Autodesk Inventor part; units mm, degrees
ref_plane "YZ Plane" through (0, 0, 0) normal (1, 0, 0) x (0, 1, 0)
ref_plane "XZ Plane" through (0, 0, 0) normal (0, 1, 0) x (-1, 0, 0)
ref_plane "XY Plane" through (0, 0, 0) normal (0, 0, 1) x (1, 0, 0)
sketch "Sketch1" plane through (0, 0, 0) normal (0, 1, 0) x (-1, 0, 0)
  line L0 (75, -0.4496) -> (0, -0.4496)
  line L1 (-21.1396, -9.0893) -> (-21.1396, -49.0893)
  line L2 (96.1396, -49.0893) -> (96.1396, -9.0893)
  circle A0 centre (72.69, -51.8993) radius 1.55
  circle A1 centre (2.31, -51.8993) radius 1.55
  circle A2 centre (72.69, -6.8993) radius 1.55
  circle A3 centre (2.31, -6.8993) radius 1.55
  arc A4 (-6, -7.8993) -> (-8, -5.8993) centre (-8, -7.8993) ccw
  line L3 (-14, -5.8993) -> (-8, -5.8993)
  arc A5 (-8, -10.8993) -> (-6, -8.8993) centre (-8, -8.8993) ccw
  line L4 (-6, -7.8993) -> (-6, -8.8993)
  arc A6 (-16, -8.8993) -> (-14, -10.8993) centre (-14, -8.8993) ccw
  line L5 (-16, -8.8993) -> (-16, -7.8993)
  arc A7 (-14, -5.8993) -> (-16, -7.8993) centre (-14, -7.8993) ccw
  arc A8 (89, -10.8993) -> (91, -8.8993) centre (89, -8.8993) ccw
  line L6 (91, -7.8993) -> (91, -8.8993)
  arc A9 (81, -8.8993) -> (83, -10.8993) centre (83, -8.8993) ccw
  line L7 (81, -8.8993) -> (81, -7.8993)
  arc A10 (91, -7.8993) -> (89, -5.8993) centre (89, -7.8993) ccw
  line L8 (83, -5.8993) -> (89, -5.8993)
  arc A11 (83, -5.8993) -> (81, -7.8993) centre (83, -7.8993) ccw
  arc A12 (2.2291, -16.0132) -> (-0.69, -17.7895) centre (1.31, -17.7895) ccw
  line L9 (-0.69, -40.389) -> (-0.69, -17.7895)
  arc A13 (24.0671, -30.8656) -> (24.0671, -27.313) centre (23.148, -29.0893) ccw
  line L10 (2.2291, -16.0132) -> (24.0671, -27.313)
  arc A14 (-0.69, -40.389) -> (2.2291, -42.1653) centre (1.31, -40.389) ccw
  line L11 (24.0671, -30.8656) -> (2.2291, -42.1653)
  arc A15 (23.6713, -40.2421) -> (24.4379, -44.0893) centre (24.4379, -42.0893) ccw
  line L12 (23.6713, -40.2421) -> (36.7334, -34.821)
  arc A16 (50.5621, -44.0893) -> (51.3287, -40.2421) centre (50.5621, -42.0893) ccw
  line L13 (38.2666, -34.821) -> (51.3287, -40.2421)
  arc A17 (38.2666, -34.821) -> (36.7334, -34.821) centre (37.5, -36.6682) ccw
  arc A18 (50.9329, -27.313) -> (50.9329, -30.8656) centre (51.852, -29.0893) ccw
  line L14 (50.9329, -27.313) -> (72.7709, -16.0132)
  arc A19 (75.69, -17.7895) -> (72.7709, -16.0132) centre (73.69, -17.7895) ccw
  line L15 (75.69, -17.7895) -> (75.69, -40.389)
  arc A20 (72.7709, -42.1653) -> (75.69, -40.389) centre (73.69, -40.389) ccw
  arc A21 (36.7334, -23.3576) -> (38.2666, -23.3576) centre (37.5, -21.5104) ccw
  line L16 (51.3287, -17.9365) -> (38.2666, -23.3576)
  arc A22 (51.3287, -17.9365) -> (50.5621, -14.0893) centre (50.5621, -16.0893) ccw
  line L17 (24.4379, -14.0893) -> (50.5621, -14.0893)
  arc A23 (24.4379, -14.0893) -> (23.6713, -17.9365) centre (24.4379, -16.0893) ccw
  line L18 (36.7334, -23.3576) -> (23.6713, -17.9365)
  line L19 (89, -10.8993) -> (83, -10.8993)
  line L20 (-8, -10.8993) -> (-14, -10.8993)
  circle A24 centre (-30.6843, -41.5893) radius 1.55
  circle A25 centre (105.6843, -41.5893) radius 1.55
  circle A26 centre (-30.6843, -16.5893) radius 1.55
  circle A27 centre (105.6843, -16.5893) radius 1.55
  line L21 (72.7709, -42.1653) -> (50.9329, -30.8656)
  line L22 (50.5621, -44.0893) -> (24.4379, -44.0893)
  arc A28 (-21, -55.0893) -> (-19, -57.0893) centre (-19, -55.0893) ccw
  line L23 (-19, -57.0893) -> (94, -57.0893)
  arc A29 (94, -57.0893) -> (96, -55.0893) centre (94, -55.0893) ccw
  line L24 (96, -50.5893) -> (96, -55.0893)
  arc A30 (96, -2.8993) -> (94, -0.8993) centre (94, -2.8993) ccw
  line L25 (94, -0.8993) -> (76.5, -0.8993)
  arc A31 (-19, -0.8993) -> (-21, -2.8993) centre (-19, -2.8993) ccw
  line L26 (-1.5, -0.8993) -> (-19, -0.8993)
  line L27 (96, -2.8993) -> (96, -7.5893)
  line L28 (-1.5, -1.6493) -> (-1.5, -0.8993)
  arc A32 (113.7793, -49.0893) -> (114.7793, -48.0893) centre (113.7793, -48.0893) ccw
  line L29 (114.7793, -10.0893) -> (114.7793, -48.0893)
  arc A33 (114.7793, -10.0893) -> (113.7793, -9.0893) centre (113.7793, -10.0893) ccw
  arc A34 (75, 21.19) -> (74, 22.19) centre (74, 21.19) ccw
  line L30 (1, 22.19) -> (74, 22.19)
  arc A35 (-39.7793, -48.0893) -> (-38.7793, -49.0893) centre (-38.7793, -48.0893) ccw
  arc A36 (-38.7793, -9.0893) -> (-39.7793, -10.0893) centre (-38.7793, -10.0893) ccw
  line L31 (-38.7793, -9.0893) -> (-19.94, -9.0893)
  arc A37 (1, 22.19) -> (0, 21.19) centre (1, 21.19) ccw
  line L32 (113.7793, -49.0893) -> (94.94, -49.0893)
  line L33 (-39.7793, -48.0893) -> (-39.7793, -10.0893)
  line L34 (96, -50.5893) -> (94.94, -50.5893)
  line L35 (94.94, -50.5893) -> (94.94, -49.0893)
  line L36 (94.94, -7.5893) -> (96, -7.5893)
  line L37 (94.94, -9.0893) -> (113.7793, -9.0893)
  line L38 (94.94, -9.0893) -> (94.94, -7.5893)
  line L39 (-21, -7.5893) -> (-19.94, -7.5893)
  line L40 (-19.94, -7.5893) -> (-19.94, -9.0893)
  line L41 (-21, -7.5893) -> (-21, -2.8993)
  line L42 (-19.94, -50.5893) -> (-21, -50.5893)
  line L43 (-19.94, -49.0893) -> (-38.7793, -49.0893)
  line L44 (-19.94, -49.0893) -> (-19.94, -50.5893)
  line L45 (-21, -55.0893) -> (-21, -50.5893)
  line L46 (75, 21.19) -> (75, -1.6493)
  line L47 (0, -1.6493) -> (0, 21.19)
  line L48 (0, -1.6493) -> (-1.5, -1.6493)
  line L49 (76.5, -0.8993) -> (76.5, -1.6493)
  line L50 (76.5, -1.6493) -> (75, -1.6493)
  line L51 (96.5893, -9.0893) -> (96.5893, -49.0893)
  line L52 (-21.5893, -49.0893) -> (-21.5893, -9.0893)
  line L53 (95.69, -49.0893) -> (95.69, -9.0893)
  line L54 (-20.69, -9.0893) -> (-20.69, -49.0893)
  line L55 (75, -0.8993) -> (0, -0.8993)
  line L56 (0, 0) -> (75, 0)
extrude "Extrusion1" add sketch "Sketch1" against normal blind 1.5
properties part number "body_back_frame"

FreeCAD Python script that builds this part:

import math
import FreeCAD as App
import Part
import Sketcher
Q = App.Units.Quantity

doc = App.newDocument("Part")
body = doc.addObject("PartDesign::Body", "Body")

sketch1 = doc.addObject("Sketcher::SketchObject", "Sketch")
body.addObject(sketch1)
sketch1.AttachmentSupport = (doc.XZ_Plane, [""])
sketch1.MapMode = "FlatFace"
sketch1.addGeometry(Part.ArcOfCircle(Part.Circle(App.Vector(-74, 21.19, 0), App.Vector(0, 0, 1), 1), math.radians(90), math.radians(180)), False)
sketch1.addGeometry(Part.LineSegment(App.Vector(-74, 22.19, 0), App.Vector(-1, 22.19, 0)), False)
sketch1.addGeometry(Part.ArcOfCircle(Part.Circle(App.Vector(-1, 21.19, 0), App.Vector(0, 0, 1), 1), math.radians(0), math.radians(90)), False)
sketch1.addGeometry(Part.LineSegment(App.Vector(0, 21.19, 0), App.Vector(0, -1.6493, 0)), False)
sketch1.addGeometry(Part.LineSegment(App.Vector(0, -1.6493, 0), App.Vector(1.5, -1.6493, 0)), False)
sketch1.addGeometry(Part.LineSegment(App.Vector(1.5, -1.6493, 0), App.Vector(1.5, -0.8993, 0)), False)
sketch1.addGeometry(Part.LineSegment(App.Vector(1.5, -0.8993, 0), App.Vector(19, -0.8993, 0)), False)
sketch1.addGeometry(Part.ArcOfCircle(Part.Circle(App.Vector(19, -2.8993, 0), App.Vector(0, 0, 1), 2), math.radians(0), math.radians(90)), False)
sketch1.addGeometry(Part.LineSegment(App.Vector(21, -2.8993, 0), App.Vector(21, -7.5893, 0)), False)
sketch1.addGeometry(Part.LineSegment(App.Vector(21, -7.5893, 0), App.Vector(19.94, -7.5893, 0)), False)
sketch1.addGeometry(Part.LineSegment(App.Vector(19.94, -7.5893, 0), App.Vector(19.94, -9.0893, 0)), False)
sketch1.addGeometry(Part.LineSegment(App.Vector(19.94, -9.0893, 0), App.Vector(38.7793, -9.0893, 0)), False)
sketch1.addGeometry(Part.ArcOfCircle(Part.Circle(App.Vector(38.7793, -10.0893, 0), App.Vector(0, 0, 1), 1), math.radians(0), math.radians(90)), False)
sketch1.addGeometry(Part.LineSegment(App.Vector(39.7793, -10.0893, 0), App.Vector(39.7793, -48.0893, 0)), False)
sketch1.addGeometry(Part.ArcOfCircle(Part.Circle(App.Vector(38.7793, -48.0893, 0), App.Vector(0, 0, 1), 1), math.radians(-90), math.radians(0)), False)
sketch1.addGeometry(Part.LineSegment(App.Vector(38.7793, -49.0893, 0), App.Vector(19.94, -49.0893, 0)), False)
sketch1.addGeometry(Part.LineSegment(App.Vector(19.94, -49.0893, 0), App.Vector(19.94, -50.5893, 0)), False)
sketch1.addGeometry(Part.LineSegment(App.Vector(19.94, -50.5893, 0), App.Vector(21, -50.5893, 0)), False)
sketch1.addGeometry(Part.LineSegment(App.Vector(21, -50.5893, 0), App.Vector(21, -55.0893, 0)), False)
sketch1.addGeometry(Part.ArcOfCircle(Part.Circle(App.Vector(19, -55.0893, 0), App.Vector(0, 0, 1), 2), math.radians(-90), math.radians(0)), False)
sketch1.addGeometry(Part.LineSegment(App.Vector(19, -57.0893, 0), App.Vector(-94, -57.0893, 0)), False)
sketch1.addGeometry(Part.ArcOfCircle(Part.Circle(App.Vector(-94, -55.0893, 0), App.Vector(0, 0, 1), 2), math.radians(180), math.radians(270)), False)
sketch1.addGeometry(Part.LineSegment(App.Vector(-96, -55.0893, 0), App.Vector(-96, -50.5893, 0)), False)
sketch1.addGeometry(Part.LineSegment(App.Vector(-96, -50.5893, 0), App.Vector(-94.94, -50.5893, 0)), False)
sketch1.addGeometry(Part.LineSegment(App.Vector(-94.94, -50.5893, 0), App.Vector(-94.94, -49.0893, 0)), False)
sketch1.addGeometry(Part.LineSegment(App.Vector(-94.94, -49.0893, 0), App.Vector(-113.7793, -49.0893, 0)), False)
sketch1.addGeometry(Part.ArcOfCircle(Part.Circle(App.Vector(-113.7793, -48.0893, 0), App.Vector(0, 0, 1), 1), math.radians(180), math.radians(270)), False)
sketch1.addGeometry(Part.LineSegment(App.Vector(-114.7793, -48.0893, 0), App.Vector(-114.7793, -10.0893, 0)), False)
sketch1.addGeometry(Part.ArcOfCircle(Part.Circle(App.Vector(-113.7793, -10.0893, 0), App.Vector(0, 0, 1), 1), math.radians(90), math.radians(180)), False)
sketch1.addGeometry(Part.LineSegment(App.Vector(-113.7793, -9.0893, 0), App.Vector(-94.94, -9.0893, 0)), False)
sketch1.addGeometry(Part.LineSegment(App.Vector(-94.94, -9.0893, 0), App.Vector(-94.94, -7.5893, 0)), False)
sketch1.addGeometry(Part.LineSegment(App.Vector(-94.94, -7.5893, 0), App.Vector(-96, -7.5893, 0)), False)
sketch1.addGeometry(Part.LineSegment(App.Vector(-96, -7.5893, 0), App.Vector(-96, -2.8993, 0)), False)
sketch1.addGeometry(Part.ArcOfCircle(Part.Circle(App.Vector(-94, -2.8993, 0), App.Vector(0, 0, 1), 2), math.radians(90), math.radians(180)), False)
sketch1.addGeometry(Part.LineSegment(App.Vector(-94, -0.8993, 0), App.Vector(-76.5, -0.8993, 0)), False)
sketch1.addGeometry(Part.LineSegment(App.Vector(-76.5, -0.8993, 0), App.Vector(-76.5, -1.6493, 0)), False)
sketch1.addGeometry(Part.LineSegment(App.Vector(-76.5, -1.6493, 0), App.Vector(-75, -1.6493, 0)), False)
sketch1.addGeometry(Part.LineSegment(App.Vector(-75, -1.6493, 0), App.Vector(-75, 21.19, 0)), False)
sketch1.addGeometry(Part.LineSegment(App.Vector(-89, -10.8993, 0), App.Vector(-83, -10.8993, 0)), False)
sketch1.addGeometry(Part.ArcOfCircle(Part.Circle(App.Vector(-83, -8.8993, 0), App.Vector(0, 0, 1), 2), math.radians(-90), math.radians(0)), False)
sketch1.addGeometry(Part.LineSegment(App.Vector(-81, -8.8993, 0), App.Vector(-81, -7.8993, 0)), False)
sketch1.addGeometry(Part.ArcOfCircle(Part.Circle(App.Vector(-83, -7.8993, 0), App.Vector(0, 0, 1), 2), math.radians(0), math.radians(90)), False)
sketch1.addGeometry(Part.LineSegment(App.Vector(-83, -5.8993, 0), App.Vector(-89, -5.8993, 0)), False)
sketch1.addGeometry(Part.ArcOfCircle(Part.Circle(App.Vector(-89, -7.8993, 0), App.Vector(0, 0, 1), 2), math.radians(90), math.radians(180)), False)
sketch1.addGeometry(Part.LineSegment(App.Vector(-91, -7.8993, 0), App.Vector(-91, -8.8993, 0)), False)
sketch1.addGeometry(Part.ArcOfCircle(Part.Circle(App.Vector(-89, -8.8993, 0), App.Vector(0, 0, 1), 2), math.radians(180), math.radians(270)), False)
sketch1.addGeometry(Part.Circle(App.Vector(-2.31, -51.8993, 0), App.Vector(0, 0, 1), 1.55), False)
sketch1.addGeometry(Part.ArcOfCircle(Part.Circle(App.Vector(-1.31, -17.7895, 0), App.Vector(0, 0, 1), 1.999997), math.radians(0), math.radians(117.358124)), False)
sketch1.addGeometry(Part.LineSegment(App.Vector(-2.2291, -16.0132, 0), App.Vector(-24.0671, -27.313, 0)), False)
sketch1.addGeometry(Part.ArcOfCircle(Part.Circle(App.Vector(-23.148, -29.0893, 0), App.Vector(0, 0, 1), 1.999997), math.radians(117.358124), math.radians(242.641876)), False)
sketch1.addGeometry(Part.LineSegment(App.Vector(-24.0671, -30.8656, 0), App.Vector(-2.2291, -42.1653, 0)), False)
sketch1.addGeometry(Part.ArcOfCircle(Part.Circle(App.Vector(-1.31, -40.389, 0), App.Vector(0, 0, 1), 2), math.radians(-117.358124), math.radians(0)), False)
sketch1.addGeometry(Part.LineSegment(App.Vector(0.69, -40.389, 0), App.Vector(0.69, -17.7895, 0)), False)
sketch1.addGeometry(Part.ArcOfCircle(Part.Circle(App.Vector(-37.5, -21.5104, 0), App.Vector(0, 0, 1), 1.999956), math.radians(-112.538768), math.radians(-67.461232)), False)
sketch1.addGeometry(Part.LineSegment(App.Vector(-36.7334, -23.3576, 0), App.Vector(-23.6713, -17.9365, 0)), False)
sketch1.addGeometry(Part.ArcOfCircle(Part.Circle(App.Vector(-24.4379, -16.0893, 0), App.Vector(0, 0, 1), 2), math.radians(-67.461232), math.radians(90)), False)
sketch1.addGeometry(Part.LineSegment(App.Vector(-24.4379, -14.0893, 0), App.Vector(-50.5621, -14.0893, 0)), False)
sketch1.addGeometry(Part.ArcOfCircle(Part.Circle(App.Vector(-50.5621, -16.0893, 0), App.Vector(0, 0, 1), 1.999956), math.radians(90), math.radians(247.461232)), False)
sketch1.addGeometry(Part.LineSegment(App.Vector(-51.3287, -17.9365, 0), App.Vector(-38.2666, -23.3576, 0)), False)
sketch1.addGeometry(Part.Circle(App.Vector(-72.69, -51.8993, 0), App.Vector(0, 0, 1), 1.55), False)
sketch1.addGeometry(Part.ArcOfCircle(Part.Circle(App.Vector(-24.4379, -42.0893, 0), App.Vector(0, 0, 1), 1.999956), math.radians(-90), math.radians(67.461232)), False)
sketch1.addGeometry(Part.LineSegment(App.Vector(-23.6713, -40.2421, 0), App.Vector(-36.7334, -34.821, 0)), False)
sketch1.addGeometry(Part.ArcOfCircle(Part.Circle(App.Vector(-37.5, -36.6682, 0), App.Vector(0, 0, 1), 1.999956), math.radians(67.461232), math.radians(112.538768)), False)
sketch1.addGeometry(Part.LineSegment(App.Vector(-38.2666, -34.821, 0), App.Vector(-51.3287, -40.2421, 0)), False)
sketch1.addGeometry(Part.ArcOfCircle(Part.Circle(App.Vector(-50.5621, -42.0893, 0), App.Vector(0, 0, 1), 2), math.radians(112.538768), math.radians(270)), False)
sketch1.addGeometry(Part.LineSegment(App.Vector(-50.5621, -44.0893, 0), App.Vector(-24.4379, -44.0893, 0)), False)
sketch1.addGeometry(Part.ArcOfCircle(Part.Circle(App.Vector(-51.852, -29.0893, 0), App.Vector(0, 0, 1), 1.999997), math.radians(-62.641876), math.radians(62.641876)), False)
sketch1.addGeometry(Part.LineSegment(App.Vector(-50.9329, -27.313, 0), App.Vector(-72.7709, -16.0132, 0)), False)
sketch1.addGeometry(Part.ArcOfCircle(Part.Circle(App.Vector(-73.69, -17.7895, 0), App.Vector(0, 0, 1), 2), math.radians(62.641876), math.radians(180)), False)
sketch1.addGeometry(Part.LineSegment(App.Vector(-75.69, -17.7895, 0), App.Vector(-75.69, -40.389, 0)), False)
sketch1.addGeometry(Part.ArcOfCircle(Part.Circle(App.Vector(-73.69, -40.389, 0), App.Vector(0, 0, 1), 1.999997), math.radians(180), math.radians(297.358124)), False)
sketch1.addGeometry(Part.LineSegment(App.Vector(-72.7709, -42.1653, 0), App.Vector(-50.9329, -30.8656, 0)), False)
sketch1.addGeometry(Part.ArcOfCircle(Part.Circle(App.Vector(8, -7.8993, 0), App.Vector(0, 0, 1), 2), math.radians(90), math.radians(180)), False)
sketch1.addGeometry(Part.LineSegment(App.Vector(6, -7.8993, 0), App.Vector(6, -8.8993, 0)), False)
sketch1.addGeometry(Part.ArcOfCircle(Part.Circle(App.Vector(8, -8.8993, 0), App.Vector(0, 0, 1), 2), math.radians(180), math.radians(270)), False)
sketch1.addGeometry(Part.LineSegment(App.Vector(8, -10.8993, 0), App.Vector(14, -10.8993, 0)), False)
sketch1.addGeometry(Part.ArcOfCircle(Part.Circle(App.Vector(14, -8.8993, 0), App.Vector(0, 0, 1), 2), math.radians(-90), math.radians(0)), False)
sketch1.addGeometry(Part.LineSegment(App.Vector(16, -8.8993, 0), App.Vector(16, -7.8993, 0)), False)
sketch1.addGeometry(Part.ArcOfCircle(Part.Circle(App.Vector(14, -7.8993, 0), App.Vector(0, 0, 1), 2), math.radians(0), math.radians(90)), False)
sketch1.addGeometry(Part.LineSegment(App.Vector(14, -5.8993, 0), App.Vector(8, -5.8993, 0)), False)
sketch1.addGeometry(Part.Circle(App.Vector(-2.31, -6.8993, 0), App.Vector(0, 0, 1), 1.55), False)
sketch1.addGeometry(Part.Circle(App.Vector(-72.69, -6.8993, 0), App.Vector(0, 0, 1), 1.55), False)
sketch1.addGeometry(Part.Circle(App.Vector(-105.6843, -16.5893, 0), App.Vector(0, 0, 1), 1.55), False)
sketch1.addGeometry(Part.Circle(App.Vector(-105.6843, -41.5893, 0), App.Vector(0, 0, 1), 1.55), False)
sketch1.addGeometry(Part.Circle(App.Vector(30.6843, -16.5893, 0), App.Vector(0, 0, 1), 1.55), False)
sketch1.addGeometry(Part.Circle(App.Vector(30.6843, -41.5893, 0), App.Vector(0, 0, 1), 1.55), False)
sketch1.addConstraint(Sketcher.Constraint("Tangent", 0, 1, 1, 1))
sketch1.addConstraint(Sketcher.Constraint("Tangent", 1, 2, 2, 2))
sketch1.addConstraint(Sketcher.Constraint("Tangent", 2, 1, 3, 1))
sketch1.addConstraint(Sketcher.Constraint("Coincident", 3, 2, 4, 1))
sketch1.addConstraint(Sketcher.Constraint("Coincident", 4, 2, 5, 1))
sketch1.addConstraint(Sketcher.Constraint("Coincident", 5, 2, 6, 1))
sketch1.addConstraint(Sketcher.Constraint("Tangent", 6, 2, 7, 2))
sketch1.addConstraint(Sketcher.Constraint("Tangent", 7, 1, 8, 1))
sketch1.addConstraint(Sketcher.Constraint("Coincident", 8, 2, 9, 1))
sketch1.addConstraint(Sketcher.Constraint("Coincident", 9, 2, 10, 1))
sketch1.addConstraint(Sketcher.Constraint("Coincident", 10, 2, 11, 1))
sketch1.addConstraint(Sketcher.Constraint("Tangent", 11, 2, 12, 2))
sketch1.addConstraint(Sketcher.Constraint("Tangent", 12, 1, 13, 1))
sketch1.addConstraint(Sketcher.Constraint("Tangent", 13, 2, 14, 2))
sketch1.addConstraint(Sketcher.Constraint("Tangent", 14, 1, 15, 1))
sketch1.addConstraint(Sketcher.Constraint("Coincident", 15, 2, 16, 1))
sketch1.addConstraint(Sketcher.Constraint("Coincident", 16, 2, 17, 1))
sketch1.addConstraint(Sketcher.Constraint("Coincident", 17, 2, 18, 1))
sketch1.addConstraint(Sketcher.Constraint("Tangent", 18, 2, 19, 2))
sketch1.addConstraint(Sketcher.Constraint("Tangent", 19, 1, 20, 1))
sketch1.addConstraint(Sketcher.Constraint("Tangent", 20, 2, 21, 2))
sketch1.addConstraint(Sketcher.Constraint("Tangent", 21, 1, 22, 1))
sketch1.addConstraint(Sketcher.Constraint("Coincident", 22, 2, 23, 1))
sketch1.addConstraint(Sketcher.Constraint("Coincident", 23, 2, 24, 1))
sketch1.addConstraint(Sketcher.Constraint("Coincident", 24, 2, 25, 1))
sketch1.addConstraint(Sketcher.Constraint("Tangent", 25, 2, 26, 2))
sketch1.addConstraint(Sketcher.Constraint("Tangent", 26, 1, 27, 1))
sketch1.addConstraint(Sketcher.Constraint("Tangent", 27, 2, 28, 2))
sketch1.addConstraint(Sketcher.Constraint("Tangent", 28, 1, 29, 1))
sketch1.addConstraint(Sketcher.Constraint("Coincident", 29, 2, 30, 1))
sketch1.addConstraint(Sketcher.Constraint("Coincident", 30, 2, 31, 1))
sketch1.addConstraint(Sketcher.Constraint("Coincident", 31, 2, 32, 1))
sketch1.addConstraint(Sketcher.Constraint("Tangent", 32, 2, 33, 2))
sketch1.addConstraint(Sketcher.Constraint("Tangent", 33, 1, 34, 1))
sketch1.addConstraint(Sketcher.Constraint("Coincident", 34, 2, 35, 1))
sketch1.addConstraint(Sketcher.Constraint("Coincident", 35, 2, 36, 1))
sketch1.addConstraint(Sketcher.Constraint("Coincident", 36, 2, 37, 1))
sketch1.addConstraint(Sketcher.Constraint("Tangent", 37, 2, 0, 2))
sketch1.addConstraint(Sketcher.Constraint("Tangent", 38, 2, 39, 1))
sketch1.addConstraint(Sketcher.Constraint("Tangent", 39, 2, 40, 1))
sketch1.addConstraint(Sketcher.Constraint("Tangent", 40, 2, 41, 1))
sketch1.addConstraint(Sketcher.Constraint("Tangent", 41, 2, 42, 1))
sketch1.addConstraint(Sketcher.Constraint("Tangent", 42, 2, 43, 1))
sketch1.addConstraint(Sketcher.Constraint("Tangent", 43, 2, 44, 1))
sketch1.addConstraint(Sketcher.Constraint("Tangent", 44, 2, 45, 1))
sketch1.addConstraint(Sketcher.Constraint("Tangent", 45, 2, 38, 1))
sketch1.addConstraint(Sketcher.Constraint("Tangent", 47, 2, 48, 1))
sketch1.addConstraint(Sketcher.Constraint("Tangent", 48, 2, 49, 1))
sketch1.addConstraint(Sketcher.Constraint("Tangent", 49, 2, 50, 1))
sketch1.addConstraint(Sketcher.Constraint("Tangent", 50, 2, 51, 1))
sketch1.addConstraint(Sketcher.Constraint("Tangent", 51, 2, 52, 1))
sketch1.addConstraint(Sketcher.Constraint("Tangent", 52, 2, 47, 1))
sketch1.addConstraint(Sketcher.Constraint("Tangent", 53, 2, 54, 1))
sketch1.addConstraint(Sketcher.Constraint("Tangent", 54, 2, 55, 1))
sketch1.addConstraint(Sketcher.Constraint("Tangent", 55, 2, 56, 1))
sketch1.addConstraint(Sketcher.Constraint("Tangent", 56, 2, 57, 1))
sketch1.addConstraint(Sketcher.Constraint("Tangent", 57, 2, 58, 1))
sketch1.addConstraint(Sketcher.Constraint("Tangent", 58, 2, 53, 1))
sketch1.addConstraint(Sketcher.Constraint("Tangent", 60, 2, 61, 1))
sketch1.addConstraint(Sketcher.Constraint("Tangent", 61, 2, 62, 1))
sketch1.addConstraint(Sketcher.Constraint("Tangent", 62, 2, 63, 1))
sketch1.addConstraint(Sketcher.Constraint("Tangent", 63, 2, 64, 1))
sketch1.addConstraint(Sketcher.Constraint("Tangent", 64, 2, 65, 1))
sketch1.addConstraint(Sketcher.Constraint("Tangent", 65, 2, 60, 1))
sketch1.addConstraint(Sketcher.Constraint("Tangent", 66, 2, 67, 1))
sketch1.addConstraint(Sketcher.Constraint("Tangent", 67, 2, 68, 1))
sketch1.addConstraint(Sketcher.Constraint("Tangent", 68, 2, 69, 1))
sketch1.addConstraint(Sketcher.Constraint("Tangent", 69, 2, 70, 1))
sketch1.addConstraint(Sketcher.Constraint("Tangent", 70, 2, 71, 1))
sketch1.addConstraint(Sketcher.Constraint("Tangent", 71, 2, 66, 1))
sketch1.addConstraint(Sketcher.Constraint("Tangent", 72, 2, 73, 1))
sketch1.addConstraint(Sketcher.Constraint("Tangent", 73, 2, 74, 1))
sketch1.addConstraint(Sketcher.Constraint("Tangent", 74, 2, 75, 1))
sketch1.addConstraint(Sketcher.Constraint("Tangent", 75, 2, 76, 1))
sketch1.addConstraint(Sketcher.Constraint("Tangent", 76, 2, 77, 1))
sketch1.addConstraint(Sketcher.Constraint("Tangent", 77, 2, 78, 1))
sketch1.addConstraint(Sketcher.Constraint("Tangent", 78, 2, 79, 1))
sketch1.addConstraint(Sketcher.Constraint("Tangent", 79, 2, 72, 1))
sketch1.addConstraint(Sketcher.Constraint("Horizontal", 1))
sketch1.addConstraint(Sketcher.Constraint("Vertical", 3))
sketch1.addConstraint(Sketcher.Constraint("Horizontal", 4))
sketch1.addConstraint(Sketcher.Constraint("Vertical", 5))
sketch1.addConstraint(Sketcher.Constraint("Horizontal", 6))
sketch1.addConstraint(Sketcher.Constraint("Vertical", 8))
sketch1.addConstraint(Sketcher.Constraint("Horizontal", 9))
sketch1.addConstraint(Sketcher.Constraint("Vertical", 10))
sketch1.addConstraint(Sketcher.Constraint("Horizontal", 11))
sketch1.addConstraint(Sketcher.Constraint("Vertical", 13))
sketch1.addConstraint(Sketcher.Constraint("Horizontal", 15))
sketch1.addConstraint(Sketcher.Constraint("Vertical", 16))
sketch1.addConstraint(Sketcher.Constraint("Horizontal", 17))
sketch1.addConstraint(Sketcher.Constraint("Vertical", 18))
sketch1.addConstraint(Sketcher.Constraint("Horizontal", 20))
sketch1.addConstraint(Sketcher.Constraint("Vertical", 22))
sketch1.addConstraint(Sketcher.Constraint("Horizontal", 23))
sketch1.addConstraint(Sketcher.Constraint("Vertical", 24))
sketch1.addConstraint(Sketcher.Constraint("Horizontal", 25))
sketch1.addConstraint(Sketcher.Constraint("Vertical", 27))
sketch1.addConstraint(Sketcher.Constraint("Horizontal", 29))
sketch1.addConstraint(Sketcher.Constraint("Vertical", 30))
sketch1.addConstraint(Sketcher.Constraint("Horizontal", 31))
sketch1.addConstraint(Sketcher.Constraint("Vertical", 32))
sketch1.addConstraint(Sketcher.Constraint("Horizontal", 34))
sketch1.addConstraint(Sketcher.Constraint("Vertical", 35))
sketch1.addConstraint(Sketcher.Constraint("Horizontal", 36))
sketch1.addConstraint(Sketcher.Constraint("Vertical", 37))
sketch1.addConstraint(Sketcher.Constraint("Horizontal", 38))
sketch1.addConstraint(Sketcher.Constraint("Vertical", 40))
sketch1.addConstraint(Sketcher.Constraint("Horizontal", 42))
sketch1.addConstraint(Sketcher.Constraint("Vertical", 44))
sketch1.addConstraint(Sketcher.Constraint("Vertical", 52))
sketch1.addConstraint(Sketcher.Constraint("Horizontal", 56))
sketch1.addConstraint(Sketcher.Constraint("Horizontal", 65))
sketch1.addConstraint(Sketcher.Constraint("Vertical", 69))
sketch1.addConstraint(Sketcher.Constraint("Vertical", 73))
sketch1.addConstraint(Sketcher.Constraint("Horizontal", 75))
sketch1.addConstraint(Sketcher.Constraint("Vertical", 77))
sketch1.addConstraint(Sketcher.Constraint("Horizontal", 79))
sketch1.addConstraint(Sketcher.Constraint("Equal", 0, 2))
sketch1.addConstraint(Sketcher.Constraint("Equal", 2, 12))
sketch1.addConstraint(Sketcher.Constraint("Equal", 12, 14))
sketch1.addConstraint(Sketcher.Constraint("Equal", 7, 19))
sketch1.addConstraint(Sketcher.Constraint("Equal", 19, 21))
sketch1.addConstraint(Sketcher.Constraint("Equal", 14, 26))
sketch1.addConstraint(Sketcher.Constraint("Equal", 26, 28))
sketch1.addConstraint(Sketcher.Constraint("Equal", 21, 33))
sketch1.addConstraint(Sketcher.Constraint("Equal", 33, 39))
sketch1.addConstraint(Sketcher.Constraint("Equal", 39, 41))
sketch1.addConstraint(Sketcher.Constraint("Equal", 41, 43))
sketch1.addConstraint(Sketcher.Constraint("Equal", 43, 45))
sketch1.addConstraint(Sketcher.Constraint("Equal", 45, 47))
sketch1.addConstraint(Sketcher.Constraint("Equal", 47, 49))
sketch1.addConstraint(Sketcher.Constraint("Equal", 49, 51))
sketch1.addConstraint(Sketcher.Constraint("Equal", 51, 53))
sketch1.addConstraint(Sketcher.Constraint("Equal", 53, 55))
sketch1.addConstraint(Sketcher.Constraint("Equal", 55, 57))
sketch1.addConstraint(Sketcher.Constraint("Equal", 46, 59))
sketch1.addConstraint(Sketcher.Constraint("Equal", 57, 60))
sketch1.addConstraint(Sketcher.Constraint("Equal", 60, 62))
sketch1.addConstraint(Sketcher.Constraint("Equal", 62, 64))
sketch1.addConstraint(Sketcher.Constraint("Equal", 64, 66))
sketch1.addConstraint(Sketcher.Constraint("Equal", 66, 68))
sketch1.addConstraint(Sketcher.Constraint("Equal", 68, 70))
sketch1.addConstraint(Sketcher.Constraint("Equal", 70, 72))
sketch1.addConstraint(Sketcher.Constraint("Equal", 72, 74))
sketch1.addConstraint(Sketcher.Constraint("Equal", 74, 76))
sketch1.addConstraint(Sketcher.Constraint("Equal", 76, 78))
sketch1.addConstraint(Sketcher.Constraint("Equal", 59, 80))
sketch1.addConstraint(Sketcher.Constraint("Equal", 80, 81))
sketch1.addConstraint(Sketcher.Constraint("Equal", 81, 82))
sketch1.addConstraint(Sketcher.Constraint("Equal", 82, 83))
sketch1.addConstraint(Sketcher.Constraint("Equal", 83, 84))
sketch1.addConstraint(Sketcher.Constraint("Equal", 84, 85))
sketch1.addConstraint(Sketcher.Constraint("PointOnObject", 2, 1, -2))
sketch1.addConstraint(Sketcher.Constraint("Parallel", 58, 61))
sketch1.addConstraint(Sketcher.Constraint("Parallel", 54, 63))
sketch1.addConstraint(Sketcher.Constraint("Parallel", 50, 67))
sketch1.addConstraint(Sketcher.Constraint("Parallel", 48, 71))
sketch1.addConstraint(Sketcher.Constraint("Horizontal", 14, 3, 26, 3))
sketch1.addConstraint(Sketcher.Constraint("Horizontal", 12, 3, 28, 3))
sketch1.addConstraint(Sketcher.Constraint("Horizontal", 7, 3, 33, 3))
sketch1.addConstraint(Sketcher.Constraint("Horizontal", 46, 3, 59, 3))
sketch1.addConstraint(Sketcher.Constraint("Horizontal", 49, 3, 66, 3))
sketch1.addConstraint(Sketcher.Constraint("Horizontal", 47, 3, 68, 3))
sketch1.addConstraint(Sketcher.Constraint("Horizontal", 51, 3, 70, 3))
sketch1.addConstraint(Sketcher.Constraint("Horizontal", 43, 3, 72, 3))
sketch1.addConstraint(Sketcher.Constraint("Horizontal", 45, 3, 74, 3))
sketch1.addConstraint(Sketcher.Constraint("Horizontal", 80, 3, 81, 3))
sketch1.addConstraint(Sketcher.Constraint("Horizontal", 82, 3, 84, 3))
sketch1.addConstraint(Sketcher.Constraint("Horizontal", 83, 3, 85, 3))
sketch1.addConstraint(Sketcher.Constraint("Horizontal", 17, 2, 22, 2))
sketch1.addConstraint(Sketcher.Constraint("Horizontal", 9, 2, 30, 2))
sketch1.addConstraint(Sketcher.Constraint("Horizontal", 4, 2, 35, 2))
sketch1.addConstraint(Sketcher.Constraint("Horizontal", 54, 2, 57, 2))
sketch1.addConstraint(Sketcher.Constraint("Vertical", 7, 3, 19, 3))
sketch1.addConstraint(Sketcher.Constraint("Vertical", 21, 3, 33, 3))
sketch1.addConstraint(Sketcher.Constraint("Vertical", 55, 3, 60, 3))
sketch1.addConstraint(Sketcher.Constraint("Vertical", 53, 3, 62, 3))
sketch1.addConstraint(Sketcher.Constraint("Vertical", 46, 3, 80, 3))
sketch1.addConstraint(Sketcher.Constraint("Vertical", 59, 3, 81, 3))
sketch1.addConstraint(Sketcher.Constraint("Vertical", 82, 3, 83, 3))
sketch1.addConstraint(Sketcher.Constraint("Vertical", 84, 3, 85, 3))
sketch1.addConstraint(Sketcher.Constraint("Vertical", 10, 2, 15, 2))
sketch1.addConstraint(Sketcher.Constraint("Vertical", 24, 2, 29, 2))
sketch1.addConstraint(Sketcher.Constraint("Equal", 17, 23))
sketch1.addConstraint(Sketcher.Constraint("Equal", 15, 25))
sketch1.addConstraint(Sketcher.Constraint("Equal", 6, 34))
sketch1.addConstraint(Sketcher.Constraint("Equal", 4, 36))
sketch1.addConstraint(Sketcher.Constraint("Equal", 42, 75))
sketch1.addConstraint(Sketcher.Constraint("Equal", 36, 10))
sketch1.addConstraint(Sketcher.Constraint("Equal", 10, 16))
sketch1.addConstraint(Sketcher.Constraint("Radius", 0, Q("1 mm")))
sketch1.addConstraint(Sketcher.Constraint("Radius", 7, Q("2 mm")))
sketch1.addConstraint(Sketcher.Constraint("Diameter", 46, Q("3.1 mm")))
sketch1.addConstraint(Sketcher.Constraint("DistanceX", 1, 1, 1, 2, Q("73 mm")))
sketch1.addConstraint(Sketcher.Constraint("DistanceX", 20, 2, 20, 1, Q("113 mm")))
sketch1.addConstraint(Sketcher.Constraint("DistanceX", 38, 1, 38, 2, Q("6 mm")))
sketch1.addConstraint(Sketcher.Constraint("DistanceY", 13, 2, 13, 1, Q("38 mm")))
sketch1.addConstraint(Sketcher.Constraint("DistanceY", 40, 1, 40, 2, Q("1 mm")))
sketch1.addConstraint(Sketcher.Constraint("DistanceX", 4, 1, 4, 2, Q("1.5 mm")))
sketch1.addConstraint(Sketcher.Constraint("DistanceY", 18, 2, 18, 1, Q("4.5 mm")))
sketch1.addConstraint(Sketcher.Constraint("DistanceX", 39, 3, -1, 1, Q("83 mm")))
sketch1.addConstraint(Sketcher.Constraint("DistanceX", -1, 1, 72, 3, Q("8 mm")))
sketch1.addConstraint(Sketcher.Constraint("DistanceX", 9, 2, 9, 1, Q("1.06 mm")))
sketch1.addConstraint(Sketcher.Constraint("DistanceY", 5, 1, 5, 2, Q("0.75 mm")))
sketch1.addConstraint(Sketcher.Constraint("DistanceY", 8, 2, 8, 1, Q("4.69 mm")))
sketch1.addConstraint(Sketcher.Constraint("DistanceX", 53, 3, -1, 1, Q("37.5 mm")))
sketch1.addConstraint(Sketcher.Constraint("Angle", 54, Q("22.5397 deg")))
sketch1.addConstraint(Sketcher.Constraint("DistanceY", -1, 1, 0, 3, Q("21.19 mm")))
sketch1.addConstraint(Sketcher.Constraint("DistanceX", 46, 3, -1, 1, Q("2.31 mm")))
sketch1.addConstraint(Sketcher.Constraint("DistanceX", 47, 3, -1, 1, Q("1.31 mm")))
sketch1.addConstraint(Sketcher.Constraint("DistanceX", 59, 3, -1, 1, Q("72.69 mm")))
sketch1.addConstraint(Sketcher.Constraint("DistanceX", 68, 3, -1, 1, Q("73.69 mm")))
sketch1.addConstraint(Sketcher.Constraint("DistanceX", 11, 1, 11, 2, Q("18.8393 mm")))
sketch1.addConstraint(Sketcher.Constraint("DistanceX", 56, 2, 56, 1, Q("26.1242 mm")))
sketch1.addConstraint(Sketcher.Constraint("DistanceY", 3, 2, 3, 1, Q("22.8393 mm")))
sketch1.addConstraint(Sketcher.Constraint("DistanceY", 52, 1, 52, 2, Q("22.5995 mm")))
sketch1.addConstraint(Sketcher.Constraint("DistanceX", 49, 3, -1, 1, Q("23.148 mm")))
sketch1.addConstraint(Sketcher.Constraint("DistanceY", 51, 3, -1, 1, Q("40.389 mm")))
sketch1.addConstraint(Sketcher.Constraint("DistanceY", 60, 2, -1, 1, Q("40.242 mm")))
sketch1.addConstraint(Sketcher.Constraint("DistanceY", 39, 3, -1, 1, Q("8.8993 mm")))
sketch1.addConstraint(Sketcher.Constraint("DistanceY", 46, 3, -1, 1, Q("51.8993 mm")))
sketch1.addConstraint(Sketcher.Constraint("DistanceY", 53, 3, -1, 1, Q("21.5104 mm")))
sketch1.addConstraint(Sketcher.Constraint("DistanceY", 80, 3, -1, 1, Q("6.8993 mm")))
sketch1.addConstraint(Sketcher.Constraint("DistanceX", 82, 3, -1, 1, Q("105.6843 mm")))
sketch1.addConstraint(Sketcher.Constraint("DistanceY", 82, 3, -1, 1, Q("16.5893 mm")))
sketch1.addConstraint(Sketcher.Constraint("DistanceY", 83, 3, -1, 1, Q("41.5893 mm")))
sketch1.addConstraint(Sketcher.Constraint("DistanceX", -1, 1, 84, 3, Q("30.6843 mm")))
pad1 = doc.addObject("PartDesign::Pad", "Pad")
body.addObject(pad1)
pad1.Profile = sketch1
pad1.Length = 1.5

doc.recompute()
